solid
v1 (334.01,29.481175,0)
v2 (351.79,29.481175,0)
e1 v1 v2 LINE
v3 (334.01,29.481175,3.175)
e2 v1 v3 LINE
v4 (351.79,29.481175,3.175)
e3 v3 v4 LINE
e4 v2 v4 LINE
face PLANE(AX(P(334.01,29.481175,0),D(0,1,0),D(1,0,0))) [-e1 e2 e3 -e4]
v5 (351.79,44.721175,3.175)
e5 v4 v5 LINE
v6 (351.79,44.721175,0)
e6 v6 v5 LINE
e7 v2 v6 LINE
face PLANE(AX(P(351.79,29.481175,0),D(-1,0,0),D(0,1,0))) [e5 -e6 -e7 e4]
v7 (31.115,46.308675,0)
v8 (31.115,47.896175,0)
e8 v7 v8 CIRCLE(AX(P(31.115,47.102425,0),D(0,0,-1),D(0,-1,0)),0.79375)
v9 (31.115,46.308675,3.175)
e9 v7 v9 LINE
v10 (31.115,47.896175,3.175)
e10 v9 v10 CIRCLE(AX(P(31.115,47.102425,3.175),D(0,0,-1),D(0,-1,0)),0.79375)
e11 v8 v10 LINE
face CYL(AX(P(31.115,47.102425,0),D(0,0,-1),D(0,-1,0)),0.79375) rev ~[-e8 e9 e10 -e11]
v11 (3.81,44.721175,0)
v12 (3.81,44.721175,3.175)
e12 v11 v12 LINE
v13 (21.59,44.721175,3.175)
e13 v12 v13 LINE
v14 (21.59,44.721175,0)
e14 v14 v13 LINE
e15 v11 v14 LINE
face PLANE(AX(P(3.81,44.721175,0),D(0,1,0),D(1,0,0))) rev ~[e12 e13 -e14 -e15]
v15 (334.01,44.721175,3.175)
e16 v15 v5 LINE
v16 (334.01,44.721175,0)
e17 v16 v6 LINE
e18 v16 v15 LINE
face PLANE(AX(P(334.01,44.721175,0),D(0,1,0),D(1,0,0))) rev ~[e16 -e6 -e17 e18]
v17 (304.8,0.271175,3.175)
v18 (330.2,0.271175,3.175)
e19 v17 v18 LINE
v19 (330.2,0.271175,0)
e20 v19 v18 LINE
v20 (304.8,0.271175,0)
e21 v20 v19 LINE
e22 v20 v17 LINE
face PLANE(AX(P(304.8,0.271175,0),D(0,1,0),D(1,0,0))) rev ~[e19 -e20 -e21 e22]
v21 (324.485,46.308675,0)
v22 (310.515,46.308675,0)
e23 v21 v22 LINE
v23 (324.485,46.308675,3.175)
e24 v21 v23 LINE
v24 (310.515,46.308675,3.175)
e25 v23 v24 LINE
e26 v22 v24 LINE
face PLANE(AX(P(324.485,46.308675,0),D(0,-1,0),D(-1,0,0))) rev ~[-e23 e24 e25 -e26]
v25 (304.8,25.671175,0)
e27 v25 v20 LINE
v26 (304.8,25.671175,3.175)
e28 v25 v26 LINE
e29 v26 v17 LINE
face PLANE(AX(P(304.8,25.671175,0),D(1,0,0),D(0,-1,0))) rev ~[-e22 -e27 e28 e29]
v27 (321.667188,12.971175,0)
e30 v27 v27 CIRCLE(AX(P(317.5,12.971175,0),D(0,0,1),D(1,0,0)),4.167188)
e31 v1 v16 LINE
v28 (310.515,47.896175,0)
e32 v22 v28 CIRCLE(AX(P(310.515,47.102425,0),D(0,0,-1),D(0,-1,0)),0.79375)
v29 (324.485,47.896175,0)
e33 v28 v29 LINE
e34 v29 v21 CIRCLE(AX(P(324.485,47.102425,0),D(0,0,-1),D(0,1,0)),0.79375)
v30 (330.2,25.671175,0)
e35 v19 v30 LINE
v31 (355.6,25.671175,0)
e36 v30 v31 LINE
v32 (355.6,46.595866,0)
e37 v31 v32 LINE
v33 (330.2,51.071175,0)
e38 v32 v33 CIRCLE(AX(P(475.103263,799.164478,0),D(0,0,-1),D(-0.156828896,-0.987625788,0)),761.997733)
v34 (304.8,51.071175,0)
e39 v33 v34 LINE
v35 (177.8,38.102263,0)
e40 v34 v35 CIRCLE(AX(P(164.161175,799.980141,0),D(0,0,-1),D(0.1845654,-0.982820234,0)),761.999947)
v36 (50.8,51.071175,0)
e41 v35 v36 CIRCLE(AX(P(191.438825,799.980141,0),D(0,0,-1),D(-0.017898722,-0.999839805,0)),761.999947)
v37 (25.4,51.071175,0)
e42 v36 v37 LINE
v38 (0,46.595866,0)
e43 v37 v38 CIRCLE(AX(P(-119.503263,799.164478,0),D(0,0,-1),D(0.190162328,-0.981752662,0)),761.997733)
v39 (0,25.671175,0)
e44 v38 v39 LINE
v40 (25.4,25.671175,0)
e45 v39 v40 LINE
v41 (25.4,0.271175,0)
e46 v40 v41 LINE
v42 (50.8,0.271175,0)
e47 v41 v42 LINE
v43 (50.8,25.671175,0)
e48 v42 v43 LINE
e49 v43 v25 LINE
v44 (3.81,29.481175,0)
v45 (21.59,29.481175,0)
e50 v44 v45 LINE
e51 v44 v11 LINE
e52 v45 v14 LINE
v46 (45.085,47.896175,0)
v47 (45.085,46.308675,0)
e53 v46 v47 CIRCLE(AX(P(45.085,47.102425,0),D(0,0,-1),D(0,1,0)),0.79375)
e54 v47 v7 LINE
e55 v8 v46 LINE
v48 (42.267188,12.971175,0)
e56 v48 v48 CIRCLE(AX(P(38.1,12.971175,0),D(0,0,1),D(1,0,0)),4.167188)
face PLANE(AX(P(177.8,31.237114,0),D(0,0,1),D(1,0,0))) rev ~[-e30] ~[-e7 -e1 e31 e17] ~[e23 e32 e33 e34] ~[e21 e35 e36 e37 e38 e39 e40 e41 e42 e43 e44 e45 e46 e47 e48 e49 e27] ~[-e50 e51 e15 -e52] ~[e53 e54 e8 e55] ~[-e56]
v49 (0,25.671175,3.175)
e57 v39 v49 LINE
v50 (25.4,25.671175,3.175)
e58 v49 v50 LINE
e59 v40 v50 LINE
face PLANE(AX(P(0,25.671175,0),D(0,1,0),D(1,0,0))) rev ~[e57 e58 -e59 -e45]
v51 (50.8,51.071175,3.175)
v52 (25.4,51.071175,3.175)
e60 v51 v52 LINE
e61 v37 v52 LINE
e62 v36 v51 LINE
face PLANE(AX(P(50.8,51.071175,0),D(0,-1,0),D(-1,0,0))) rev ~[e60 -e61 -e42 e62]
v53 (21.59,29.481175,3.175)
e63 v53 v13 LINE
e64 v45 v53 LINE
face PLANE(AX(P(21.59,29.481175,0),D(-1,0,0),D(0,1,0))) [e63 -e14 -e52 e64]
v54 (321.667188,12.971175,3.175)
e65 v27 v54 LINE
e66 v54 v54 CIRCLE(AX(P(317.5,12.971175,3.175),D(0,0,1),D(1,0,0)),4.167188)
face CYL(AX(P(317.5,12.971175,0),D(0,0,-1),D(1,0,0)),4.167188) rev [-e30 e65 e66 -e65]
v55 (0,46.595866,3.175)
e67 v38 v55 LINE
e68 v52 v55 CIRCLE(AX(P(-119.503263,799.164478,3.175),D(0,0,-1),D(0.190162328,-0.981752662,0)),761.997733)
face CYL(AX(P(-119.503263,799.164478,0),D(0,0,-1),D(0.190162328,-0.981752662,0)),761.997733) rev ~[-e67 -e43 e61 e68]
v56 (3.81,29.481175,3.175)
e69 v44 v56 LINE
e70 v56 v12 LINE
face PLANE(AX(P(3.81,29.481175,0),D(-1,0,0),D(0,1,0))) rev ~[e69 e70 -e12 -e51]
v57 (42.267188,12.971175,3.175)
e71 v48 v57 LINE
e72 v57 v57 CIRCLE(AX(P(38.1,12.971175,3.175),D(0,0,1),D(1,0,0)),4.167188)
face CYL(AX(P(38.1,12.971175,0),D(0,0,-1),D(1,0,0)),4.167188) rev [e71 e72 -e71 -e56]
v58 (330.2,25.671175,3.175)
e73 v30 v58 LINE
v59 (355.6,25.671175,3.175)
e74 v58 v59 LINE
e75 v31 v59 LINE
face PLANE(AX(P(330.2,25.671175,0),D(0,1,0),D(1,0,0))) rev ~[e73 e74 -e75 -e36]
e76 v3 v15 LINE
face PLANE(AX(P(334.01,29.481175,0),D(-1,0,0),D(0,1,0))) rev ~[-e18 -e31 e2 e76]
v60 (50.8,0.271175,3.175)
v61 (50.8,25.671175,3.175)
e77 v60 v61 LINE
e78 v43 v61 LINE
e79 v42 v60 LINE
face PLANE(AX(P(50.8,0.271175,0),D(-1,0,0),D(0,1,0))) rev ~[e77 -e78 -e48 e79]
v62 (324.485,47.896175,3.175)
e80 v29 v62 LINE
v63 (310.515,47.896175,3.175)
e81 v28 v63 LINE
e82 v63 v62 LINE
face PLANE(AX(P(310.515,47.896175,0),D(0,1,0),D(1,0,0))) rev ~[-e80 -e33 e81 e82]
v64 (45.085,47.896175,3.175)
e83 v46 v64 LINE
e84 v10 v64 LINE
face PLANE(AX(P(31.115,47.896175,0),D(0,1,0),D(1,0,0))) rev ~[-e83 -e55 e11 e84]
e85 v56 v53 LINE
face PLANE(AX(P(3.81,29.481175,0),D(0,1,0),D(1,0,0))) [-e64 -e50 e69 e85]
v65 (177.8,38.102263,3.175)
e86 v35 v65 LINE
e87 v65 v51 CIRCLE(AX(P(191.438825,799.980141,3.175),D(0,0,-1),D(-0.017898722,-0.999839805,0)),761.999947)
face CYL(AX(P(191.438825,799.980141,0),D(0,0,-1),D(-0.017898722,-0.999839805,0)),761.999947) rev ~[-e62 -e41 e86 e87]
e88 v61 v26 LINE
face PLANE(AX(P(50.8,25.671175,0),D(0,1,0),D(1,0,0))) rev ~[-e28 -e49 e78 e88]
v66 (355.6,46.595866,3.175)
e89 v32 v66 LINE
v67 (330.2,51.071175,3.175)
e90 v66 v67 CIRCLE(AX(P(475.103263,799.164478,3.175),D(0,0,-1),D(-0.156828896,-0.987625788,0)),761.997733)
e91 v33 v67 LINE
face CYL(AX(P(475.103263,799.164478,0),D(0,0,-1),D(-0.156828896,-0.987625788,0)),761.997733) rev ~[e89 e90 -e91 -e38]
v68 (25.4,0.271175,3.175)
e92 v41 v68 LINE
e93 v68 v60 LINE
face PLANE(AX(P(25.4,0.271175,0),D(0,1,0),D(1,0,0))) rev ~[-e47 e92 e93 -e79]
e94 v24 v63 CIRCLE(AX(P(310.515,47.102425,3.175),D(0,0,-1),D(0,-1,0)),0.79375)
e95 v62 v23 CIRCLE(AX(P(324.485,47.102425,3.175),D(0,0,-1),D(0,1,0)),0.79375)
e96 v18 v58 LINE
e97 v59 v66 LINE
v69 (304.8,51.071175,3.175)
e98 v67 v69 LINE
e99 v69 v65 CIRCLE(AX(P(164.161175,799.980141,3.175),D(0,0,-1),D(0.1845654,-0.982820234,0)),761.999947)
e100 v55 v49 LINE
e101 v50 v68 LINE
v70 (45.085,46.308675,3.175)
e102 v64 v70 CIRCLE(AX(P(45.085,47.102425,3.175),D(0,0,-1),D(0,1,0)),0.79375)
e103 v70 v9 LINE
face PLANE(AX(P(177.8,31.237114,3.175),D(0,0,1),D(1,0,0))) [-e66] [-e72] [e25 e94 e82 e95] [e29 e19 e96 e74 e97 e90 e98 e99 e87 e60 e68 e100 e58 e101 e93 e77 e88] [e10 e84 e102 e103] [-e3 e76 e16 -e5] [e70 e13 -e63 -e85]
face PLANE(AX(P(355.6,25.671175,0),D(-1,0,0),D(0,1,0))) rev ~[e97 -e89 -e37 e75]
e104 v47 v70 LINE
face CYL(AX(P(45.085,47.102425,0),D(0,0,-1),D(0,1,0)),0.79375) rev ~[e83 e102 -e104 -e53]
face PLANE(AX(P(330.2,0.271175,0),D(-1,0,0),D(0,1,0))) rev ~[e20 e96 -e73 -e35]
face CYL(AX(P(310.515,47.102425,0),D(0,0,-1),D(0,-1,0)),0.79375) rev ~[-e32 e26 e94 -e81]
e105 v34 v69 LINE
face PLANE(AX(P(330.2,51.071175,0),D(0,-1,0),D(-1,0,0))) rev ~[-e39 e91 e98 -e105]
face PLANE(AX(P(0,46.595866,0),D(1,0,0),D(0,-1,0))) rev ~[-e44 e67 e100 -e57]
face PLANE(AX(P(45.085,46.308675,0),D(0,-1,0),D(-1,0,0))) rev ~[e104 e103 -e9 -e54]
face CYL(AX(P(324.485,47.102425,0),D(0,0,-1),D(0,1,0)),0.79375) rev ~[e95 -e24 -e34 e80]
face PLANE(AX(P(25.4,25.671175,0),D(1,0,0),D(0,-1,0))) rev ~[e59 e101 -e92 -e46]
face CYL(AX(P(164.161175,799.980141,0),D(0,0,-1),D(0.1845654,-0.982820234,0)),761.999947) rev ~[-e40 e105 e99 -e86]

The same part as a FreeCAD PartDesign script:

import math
import FreeCAD as App
import Part
import Sketcher
from FreeCAD import Vector
Q = App.Units.Quantity


def add_polygon(sketch, points):
    """Adds a closed chain of lines whose ends are joined by coincident constraints."""
    first, n = sketch.GeometryCount, len(points)
    for a, b in zip(points, points[1:] + points[:1]):
        sketch.addGeometry(Part.LineSegment(App.Vector(*a, 0), App.Vector(*b, 0)), False)
    for i in range(n):
        sketch.addConstraint(Sketcher.Constraint("Coincident", first + i, 2, first + (i + 1) % n, 1))

doc = App.newDocument("Part")
body = doc.addObject("PartDesign::Body", "Body")

# Sketch on XY plane
sketch1 = body.newObject("Sketcher::SketchObject", "Sketch")
sketch1.AttachmentSupport = (doc.getObject("XY_Plane"), [""])
sketch1.MapMode = "FlatFace"
sketch1.addGeometry(Part.LineSegment(Vector(25.4, 25.7, 0), Vector(25.4, 0.3, 0)), False)  # 0
sketch1.addGeometry(Part.LineSegment(Vector(25.4, 0.3, 0), Vector(50.8, 0.3, 0)), False)  # 1
sketch1.addGeometry(Part.LineSegment(Vector(50.8, 0.3, 0), Vector(50.8, 25.7, 0)), False)  # 2
sketch1.addGeometry(Part.LineSegment(Vector(50.8, 25.7, 0), Vector(304.8, 25.7, 0)), False)  # 3
sketch1.addGeometry(Part.LineSegment(Vector(304.8, 25.7, 0), Vector(304.8, 0.3, 0)), False)  # 4
sketch1.addGeometry(Part.LineSegment(Vector(304.8, 0.3, 0), Vector(330.2, 0.3, 0)), False)  # 5
sketch1.addGeometry(Part.LineSegment(Vector(330.2, 0.3, 0), Vector(330.2, 25.7, 0)), False)  # 6
sketch1.addGeometry(Part.LineSegment(Vector(330.2, 25.7, 0), Vector(355.6, 25.7, 0)), False)  # 7
sketch1.addGeometry(Part.LineSegment(Vector(355.6, 25.7, 0), Vector(355.6, 46.6, 0)), False)  # 8
sketch1.addGeometry(Part.ArcOfCircle(Part.Circle(Vector(475.1, 799.2, 0), Vector(0, 0, 1), 762), math.radians(-100.96), math.radians(-99.02)), False)  # 9
sketch1.addGeometry(Part.LineSegment(Vector(330.2, 51.1, 0), Vector(304.8, 51.1, 0)), False)  # 10
sketch1.addGeometry(Part.ArcOfCircle(Part.Circle(Vector(164.2, 800, 0), Vector(0, 0, 1), 762), math.radians(-88.97), math.radians(-79.36)), False)  # 11
sketch1.addGeometry(Part.ArcOfCircle(Part.Circle(Vector(191.4, 800, 0), Vector(0, 0, 1), 762), math.radians(-100.64), math.radians(-91.03)), False)  # 12
sketch1.addGeometry(Part.LineSegment(Vector(50.8, 51.1, 0), Vector(25.4, 51.1, 0)), False)  # 13
sketch1.addGeometry(Part.ArcOfCircle(Part.Circle(Vector(-119.5, 799.2, 0), Vector(0, 0, 1), 762), math.radians(-80.98), math.radians(-79.04)), False)  # 14
sketch1.addGeometry(Part.LineSegment(Vector(0, 46.6, 0), Vector(0, 25.7, 0)), False)  # 15
sketch1.addGeometry(Part.LineSegment(Vector(0, 25.7, 0), Vector(25.4, 25.7, 0)), False)  # 16
sketch1.addGeometry(Part.Circle(Vector(38.1, 13, 0), Vector(0, 0, 1), 4.2), False)  # 17
sketch1.addGeometry(Part.Circle(Vector(317.5, 13, 0), Vector(0, 0, 1), 4.2), False)  # 18
add_polygon(sketch1, [(21.6, 29.5), (3.8, 29.5), (3.8, 44.7), (21.6, 44.7)])  # lines 19-22
sketch1.addGeometry(Part.LineSegment(Vector(45.1, 46.3, 0), Vector(31.1, 46.3, 0)), False)  # 23
sketch1.addGeometry(Part.ArcOfCircle(Part.Circle(Vector(31.1, 47.1, 0), Vector(0, 0, 1), 0.8), math.radians(90), math.radians(270)), False)  # 24
sketch1.addGeometry(Part.LineSegment(Vector(31.1, 47.9, 0), Vector(45.1, 47.9, 0)), False)  # 25
sketch1.addGeometry(Part.ArcOfCircle(Part.Circle(Vector(45.1, 47.1, 0), Vector(0, 0, 1), 0.8), math.radians(-90), math.radians(90)), False)  # 26
add_polygon(sketch1, [(351.8, 29.5), (334, 29.5), (334, 44.7), (351.8, 44.7)])  # lines 27-30
sketch1.addGeometry(Part.ArcOfCircle(Part.Circle(Vector(310.5, 47.1, 0), Vector(0, 0, 1), 0.8), math.radians(90), math.radians(270)), False)  # 31
sketch1.addGeometry(Part.LineSegment(Vector(310.5, 47.9, 0), Vector(324.5, 47.9, 0)), False)  # 32
sketch1.addGeometry(Part.ArcOfCircle(Part.Circle(Vector(324.5, 47.1, 0), Vector(0, 0, 1), 0.8), math.radians(-90), math.radians(90)), False)  # 33
sketch1.addGeometry(Part.LineSegment(Vector(324.5, 46.3, 0), Vector(310.5, 46.3, 0)), False)  # 34
sketch1.addConstraint(Sketcher.Constraint("Coincident", 0, 2, 1, 1))
sketch1.addConstraint(Sketcher.Constraint("Coincident", 1, 2, 2, 1))
sketch1.addConstraint(Sketcher.Constraint("Coincident", 2, 2, 3, 1))
sketch1.addConstraint(Sketcher.Constraint("Coincident", 3, 2, 4, 1))
sketch1.addConstraint(Sketcher.Constraint("Coincident", 4, 2, 5, 1))
sketch1.addConstraint(Sketcher.Constraint("Coincident", 5, 2, 6, 1))
sketch1.addConstraint(Sketcher.Constraint("Coincident", 6, 2, 7, 1))
sketch1.addConstraint(Sketcher.Constraint("Coincident", 7, 2, 8, 1))
sketch1.addConstraint(Sketcher.Constraint("Coincident", 8, 2, 9, 2))
sketch1.addConstraint(Sketcher.Constraint("Coincident", 9, 1, 10, 1))
sketch1.addConstraint(Sketcher.Constraint("Coincident", 10, 2, 11, 2))
sketch1.addConstraint(Sketcher.Constraint("Coincident", 11, 1, 12, 2))
sketch1.addConstraint(Sketcher.Constraint("Coincident", 12, 1, 13, 1))
sketch1.addConstraint(Sketcher.Constraint("Coincident", 13, 2, 14, 2))
sketch1.addConstraint(Sketcher.Constraint("Coincident", 14, 1, 15, 1))
sketch1.addConstraint(Sketcher.Constraint("Coincident", 15, 2, 16, 1))
sketch1.addConstraint(Sketcher.Constraint("Coincident", 16, 2, 0, 1))
sketch1.addConstraint(Sketcher.Constraint("Tangent", 23, 2, 24, 2))
sketch1.addConstraint(Sketcher.Constraint("Tangent", 24, 1, 25, 1))
sketch1.addConstraint(Sketcher.Constraint("Tangent", 25, 2, 26, 2))
sketch1.addConstraint(Sketcher.Constraint("Tangent", 26, 1, 23, 1))
sketch1.addConstraint(Sketcher.Constraint("Tangent", 31, 1, 32, 1))
sketch1.addConstraint(Sketcher.Constraint("Tangent", 32, 2, 33, 2))
sketch1.addConstraint(Sketcher.Constraint("Tangent", 33, 1, 34, 1))
sketch1.addConstraint(Sketcher.Constraint("Tangent", 34, 2, 31, 2))
sketch1.addConstraint(Sketcher.Constraint("Vertical", 0))
sketch1.addConstraint(Sketcher.Constraint("Horizontal", 1))
sketch1.addConstraint(Sketcher.Constraint("Vertical", 2))
sketch1.addConstraint(Sketcher.Constraint("Horizontal", 3))
sketch1.addConstraint(Sketcher.Constraint("Vertical", 4))
sketch1.addConstraint(Sketcher.Constraint("Horizontal", 5))
sketch1.addConstraint(Sketcher.Constraint("Vertical", 6))
sketch1.addConstraint(Sketcher.Constraint("Horizontal", 7))
sketch1.addConstraint(Sketcher.Constraint("Vertical", 8))
sketch1.addConstraint(Sketcher.Constraint("Horizontal", 10))
sketch1.addConstraint(Sketcher.Constraint("Horizontal", 13))
sketch1.addConstraint(Sketcher.Constraint("Vertical", 15))
sketch1.addConstraint(Sketcher.Constraint("Horizontal", 16))
sketch1.addConstraint(Sketcher.Constraint("Horizontal", 19))
sketch1.addConstraint(Sketcher.Constraint("Vertical", 20))
sketch1.addConstraint(Sketcher.Constraint("Horizontal", 21))
sketch1.addConstraint(Sketcher.Constraint("Vertical", 22))
sketch1.addConstraint(Sketcher.Constraint("Horizontal", 23))
sketch1.addConstraint(Sketcher.Constraint("Horizontal", 25))
sketch1.addConstraint(Sketcher.Constraint("Horizontal", 27))
sketch1.addConstraint(Sketcher.Constraint("Vertical", 28))
sketch1.addConstraint(Sketcher.Constraint("Horizontal", 29))
sketch1.addConstraint(Sketcher.Constraint("Vertical", 30))
sketch1.addConstraint(Sketcher.Constraint("Horizontal", 32))
sketch1.addConstraint(Sketcher.Constraint("Horizontal", 34))
sketch1.addConstraint(Sketcher.Constraint("Equal", 11, 12))
sketch1.addConstraint(Sketcher.Constraint("Equal", 9, 14))
sketch1.addConstraint(Sketcher.Constraint("Equal", 17, 18))
sketch1.addConstraint(Sketcher.Constraint("Equal", 26, 31))
sketch1.addConstraint(Sketcher.Constraint("PointOnObject", 15, 2, -2))
sketch1.addConstraint(Sketcher.Constraint("Horizontal", 11, 3, 12, 3))
sketch1.addConstraint(Sketcher.Constraint("Horizontal", 9, 3, 14, 3))
sketch1.addConstraint(Sketcher.Constraint("Horizontal", 17, 3, 18, 3))
sketch1.addConstraint(Sketcher.Constraint("Horizontal", 26, 3, 31, 3))
sketch1.addConstraint(Sketcher.Constraint("Horizontal", 1, 2, 4, 2))
sketch1.addConstraint(Sketcher.Constraint("Horizontal", 3, 2, 6, 2))
sketch1.addConstraint(Sketcher.Constraint("Horizontal", 7, 2, 15, 2))
sketch1.addConstraint(Sketcher.Constraint("Horizontal", 22, 2, 27, 2))
sketch1.addConstraint(Sketcher.Constraint("Horizontal", 21, 2, 28, 2))
sketch1.addConstraint(Sketcher.Constraint("Vertical", 4, 2, 10, 2))
sketch1.addConstraint(Sketcher.Constraint("Vertical", 0, 2, 13, 2))
sketch1.addConstraint(Sketcher.Constraint("Equal", 1, 5))
sketch1.addConstraint(Sketcher.Constraint("Equal", 5, 7))
sketch1.addConstraint(Sketcher.Constraint("Equal", 7, 10))
sketch1.addConstraint(Sketcher.Constraint("Equal", 10, 13))
sketch1.addConstraint(Sketcher.Constraint("Equal", 13, 16))
sketch1.addConstraint(Sketcher.Constraint("Equal", 21, 27))
sketch1.addConstraint(Sketcher.Constraint("Equal", 25, 32))
sketch1.addConstraint(Sketcher.Constraint("Equal", 16, 0))
sketch1.addConstraint(Sketcher.Constraint("Equal", 8, 15))
sketch1.addConstraint(Sketcher.Constraint("DistanceX", 1, 1, 1, 2, Q("1 in")))
sketch1.addConstraint(Sketcher.Constraint("DistanceX", 3, 1, 3, 2, Q("10 in")))
sketch1.addConstraint(Sketcher.Constraint("Diameter", 17, Q("0.328125 in")))
sketch1.addConstraint(Sketcher.Constraint("DistanceX", 19, 2, 19, 1, Q("0.7 in")))
sketch1.addConstraint(Sketcher.Constraint("DistanceY", 20, 1, 20, 2, Q("0.6 in")))
sketch1.addConstraint(Sketcher.Constraint("Radius", 24, Q("0.03125 in")))
sketch1.addConstraint(Sketcher.Constraint("DistanceX", 17, 3, 18, 3, Q("11 in")))
sketch1.addConstraint(Sketcher.Constraint("DistanceX", 24, 3, 31, 3, Q("11 in")))
sketch1.addConstraint(Sketcher.Constraint("DistanceY", 6, 2, 9, 1, Q("1 in")))
sketch1.addConstraint(Sketcher.Constraint("DistanceX", 23, 2, 23, 1, Q("0.55 in")))
sketch1.addConstraint(Sketcher.Constraint("DistanceX", -1, 1, 17, 3, Q("1.5 in")))
sketch1.addConstraint(Sketcher.Constraint("DistanceY", 0, 2, 17, 3, Q("0.5 in")))
sketch1.addConstraint(Sketcher.Constraint("DistanceX", -1, 1, 19, 2, Q("0.15 in")))
sketch1.addConstraint(Sketcher.Constraint("DistanceX", -1, 1, 27, 2, Q("13.15 in")))
sketch1.addConstraint(Sketcher.Constraint("DistanceY", 15, 2, 19, 2, Q("0.15 in")))
sketch1.addConstraint(Sketcher.Constraint("DistanceX", -1, 1, 24, 3, Q("1.225 in")))
sketch1.addConstraint(Sketcher.Constraint("DistanceY", 17, 3, 24, 3, Q("1.34375 in")))
sketch1.addConstraint(Sketcher.Constraint("Radius", 9, 761.997733))
sketch1.addConstraint(Sketcher.Constraint("Radius", 11, 761.999947))
sketch1.addConstraint(Sketcher.Constraint("DistanceY", 8, 1, 8, 2, 20.924691))
sketch1.addConstraint(Sketcher.Constraint("DistanceY", -1, 1, 11, 3, 799.980141))
sketch1.addConstraint(Sketcher.Constraint("DistanceX", 11, 3, 9, 3, 310.942089))
pad1 = body.newObject("PartDesign::Pad", "Pad")
pad1.Profile = sketch1
pad1.Length = Q("0.125 in")

doc.recompute()
